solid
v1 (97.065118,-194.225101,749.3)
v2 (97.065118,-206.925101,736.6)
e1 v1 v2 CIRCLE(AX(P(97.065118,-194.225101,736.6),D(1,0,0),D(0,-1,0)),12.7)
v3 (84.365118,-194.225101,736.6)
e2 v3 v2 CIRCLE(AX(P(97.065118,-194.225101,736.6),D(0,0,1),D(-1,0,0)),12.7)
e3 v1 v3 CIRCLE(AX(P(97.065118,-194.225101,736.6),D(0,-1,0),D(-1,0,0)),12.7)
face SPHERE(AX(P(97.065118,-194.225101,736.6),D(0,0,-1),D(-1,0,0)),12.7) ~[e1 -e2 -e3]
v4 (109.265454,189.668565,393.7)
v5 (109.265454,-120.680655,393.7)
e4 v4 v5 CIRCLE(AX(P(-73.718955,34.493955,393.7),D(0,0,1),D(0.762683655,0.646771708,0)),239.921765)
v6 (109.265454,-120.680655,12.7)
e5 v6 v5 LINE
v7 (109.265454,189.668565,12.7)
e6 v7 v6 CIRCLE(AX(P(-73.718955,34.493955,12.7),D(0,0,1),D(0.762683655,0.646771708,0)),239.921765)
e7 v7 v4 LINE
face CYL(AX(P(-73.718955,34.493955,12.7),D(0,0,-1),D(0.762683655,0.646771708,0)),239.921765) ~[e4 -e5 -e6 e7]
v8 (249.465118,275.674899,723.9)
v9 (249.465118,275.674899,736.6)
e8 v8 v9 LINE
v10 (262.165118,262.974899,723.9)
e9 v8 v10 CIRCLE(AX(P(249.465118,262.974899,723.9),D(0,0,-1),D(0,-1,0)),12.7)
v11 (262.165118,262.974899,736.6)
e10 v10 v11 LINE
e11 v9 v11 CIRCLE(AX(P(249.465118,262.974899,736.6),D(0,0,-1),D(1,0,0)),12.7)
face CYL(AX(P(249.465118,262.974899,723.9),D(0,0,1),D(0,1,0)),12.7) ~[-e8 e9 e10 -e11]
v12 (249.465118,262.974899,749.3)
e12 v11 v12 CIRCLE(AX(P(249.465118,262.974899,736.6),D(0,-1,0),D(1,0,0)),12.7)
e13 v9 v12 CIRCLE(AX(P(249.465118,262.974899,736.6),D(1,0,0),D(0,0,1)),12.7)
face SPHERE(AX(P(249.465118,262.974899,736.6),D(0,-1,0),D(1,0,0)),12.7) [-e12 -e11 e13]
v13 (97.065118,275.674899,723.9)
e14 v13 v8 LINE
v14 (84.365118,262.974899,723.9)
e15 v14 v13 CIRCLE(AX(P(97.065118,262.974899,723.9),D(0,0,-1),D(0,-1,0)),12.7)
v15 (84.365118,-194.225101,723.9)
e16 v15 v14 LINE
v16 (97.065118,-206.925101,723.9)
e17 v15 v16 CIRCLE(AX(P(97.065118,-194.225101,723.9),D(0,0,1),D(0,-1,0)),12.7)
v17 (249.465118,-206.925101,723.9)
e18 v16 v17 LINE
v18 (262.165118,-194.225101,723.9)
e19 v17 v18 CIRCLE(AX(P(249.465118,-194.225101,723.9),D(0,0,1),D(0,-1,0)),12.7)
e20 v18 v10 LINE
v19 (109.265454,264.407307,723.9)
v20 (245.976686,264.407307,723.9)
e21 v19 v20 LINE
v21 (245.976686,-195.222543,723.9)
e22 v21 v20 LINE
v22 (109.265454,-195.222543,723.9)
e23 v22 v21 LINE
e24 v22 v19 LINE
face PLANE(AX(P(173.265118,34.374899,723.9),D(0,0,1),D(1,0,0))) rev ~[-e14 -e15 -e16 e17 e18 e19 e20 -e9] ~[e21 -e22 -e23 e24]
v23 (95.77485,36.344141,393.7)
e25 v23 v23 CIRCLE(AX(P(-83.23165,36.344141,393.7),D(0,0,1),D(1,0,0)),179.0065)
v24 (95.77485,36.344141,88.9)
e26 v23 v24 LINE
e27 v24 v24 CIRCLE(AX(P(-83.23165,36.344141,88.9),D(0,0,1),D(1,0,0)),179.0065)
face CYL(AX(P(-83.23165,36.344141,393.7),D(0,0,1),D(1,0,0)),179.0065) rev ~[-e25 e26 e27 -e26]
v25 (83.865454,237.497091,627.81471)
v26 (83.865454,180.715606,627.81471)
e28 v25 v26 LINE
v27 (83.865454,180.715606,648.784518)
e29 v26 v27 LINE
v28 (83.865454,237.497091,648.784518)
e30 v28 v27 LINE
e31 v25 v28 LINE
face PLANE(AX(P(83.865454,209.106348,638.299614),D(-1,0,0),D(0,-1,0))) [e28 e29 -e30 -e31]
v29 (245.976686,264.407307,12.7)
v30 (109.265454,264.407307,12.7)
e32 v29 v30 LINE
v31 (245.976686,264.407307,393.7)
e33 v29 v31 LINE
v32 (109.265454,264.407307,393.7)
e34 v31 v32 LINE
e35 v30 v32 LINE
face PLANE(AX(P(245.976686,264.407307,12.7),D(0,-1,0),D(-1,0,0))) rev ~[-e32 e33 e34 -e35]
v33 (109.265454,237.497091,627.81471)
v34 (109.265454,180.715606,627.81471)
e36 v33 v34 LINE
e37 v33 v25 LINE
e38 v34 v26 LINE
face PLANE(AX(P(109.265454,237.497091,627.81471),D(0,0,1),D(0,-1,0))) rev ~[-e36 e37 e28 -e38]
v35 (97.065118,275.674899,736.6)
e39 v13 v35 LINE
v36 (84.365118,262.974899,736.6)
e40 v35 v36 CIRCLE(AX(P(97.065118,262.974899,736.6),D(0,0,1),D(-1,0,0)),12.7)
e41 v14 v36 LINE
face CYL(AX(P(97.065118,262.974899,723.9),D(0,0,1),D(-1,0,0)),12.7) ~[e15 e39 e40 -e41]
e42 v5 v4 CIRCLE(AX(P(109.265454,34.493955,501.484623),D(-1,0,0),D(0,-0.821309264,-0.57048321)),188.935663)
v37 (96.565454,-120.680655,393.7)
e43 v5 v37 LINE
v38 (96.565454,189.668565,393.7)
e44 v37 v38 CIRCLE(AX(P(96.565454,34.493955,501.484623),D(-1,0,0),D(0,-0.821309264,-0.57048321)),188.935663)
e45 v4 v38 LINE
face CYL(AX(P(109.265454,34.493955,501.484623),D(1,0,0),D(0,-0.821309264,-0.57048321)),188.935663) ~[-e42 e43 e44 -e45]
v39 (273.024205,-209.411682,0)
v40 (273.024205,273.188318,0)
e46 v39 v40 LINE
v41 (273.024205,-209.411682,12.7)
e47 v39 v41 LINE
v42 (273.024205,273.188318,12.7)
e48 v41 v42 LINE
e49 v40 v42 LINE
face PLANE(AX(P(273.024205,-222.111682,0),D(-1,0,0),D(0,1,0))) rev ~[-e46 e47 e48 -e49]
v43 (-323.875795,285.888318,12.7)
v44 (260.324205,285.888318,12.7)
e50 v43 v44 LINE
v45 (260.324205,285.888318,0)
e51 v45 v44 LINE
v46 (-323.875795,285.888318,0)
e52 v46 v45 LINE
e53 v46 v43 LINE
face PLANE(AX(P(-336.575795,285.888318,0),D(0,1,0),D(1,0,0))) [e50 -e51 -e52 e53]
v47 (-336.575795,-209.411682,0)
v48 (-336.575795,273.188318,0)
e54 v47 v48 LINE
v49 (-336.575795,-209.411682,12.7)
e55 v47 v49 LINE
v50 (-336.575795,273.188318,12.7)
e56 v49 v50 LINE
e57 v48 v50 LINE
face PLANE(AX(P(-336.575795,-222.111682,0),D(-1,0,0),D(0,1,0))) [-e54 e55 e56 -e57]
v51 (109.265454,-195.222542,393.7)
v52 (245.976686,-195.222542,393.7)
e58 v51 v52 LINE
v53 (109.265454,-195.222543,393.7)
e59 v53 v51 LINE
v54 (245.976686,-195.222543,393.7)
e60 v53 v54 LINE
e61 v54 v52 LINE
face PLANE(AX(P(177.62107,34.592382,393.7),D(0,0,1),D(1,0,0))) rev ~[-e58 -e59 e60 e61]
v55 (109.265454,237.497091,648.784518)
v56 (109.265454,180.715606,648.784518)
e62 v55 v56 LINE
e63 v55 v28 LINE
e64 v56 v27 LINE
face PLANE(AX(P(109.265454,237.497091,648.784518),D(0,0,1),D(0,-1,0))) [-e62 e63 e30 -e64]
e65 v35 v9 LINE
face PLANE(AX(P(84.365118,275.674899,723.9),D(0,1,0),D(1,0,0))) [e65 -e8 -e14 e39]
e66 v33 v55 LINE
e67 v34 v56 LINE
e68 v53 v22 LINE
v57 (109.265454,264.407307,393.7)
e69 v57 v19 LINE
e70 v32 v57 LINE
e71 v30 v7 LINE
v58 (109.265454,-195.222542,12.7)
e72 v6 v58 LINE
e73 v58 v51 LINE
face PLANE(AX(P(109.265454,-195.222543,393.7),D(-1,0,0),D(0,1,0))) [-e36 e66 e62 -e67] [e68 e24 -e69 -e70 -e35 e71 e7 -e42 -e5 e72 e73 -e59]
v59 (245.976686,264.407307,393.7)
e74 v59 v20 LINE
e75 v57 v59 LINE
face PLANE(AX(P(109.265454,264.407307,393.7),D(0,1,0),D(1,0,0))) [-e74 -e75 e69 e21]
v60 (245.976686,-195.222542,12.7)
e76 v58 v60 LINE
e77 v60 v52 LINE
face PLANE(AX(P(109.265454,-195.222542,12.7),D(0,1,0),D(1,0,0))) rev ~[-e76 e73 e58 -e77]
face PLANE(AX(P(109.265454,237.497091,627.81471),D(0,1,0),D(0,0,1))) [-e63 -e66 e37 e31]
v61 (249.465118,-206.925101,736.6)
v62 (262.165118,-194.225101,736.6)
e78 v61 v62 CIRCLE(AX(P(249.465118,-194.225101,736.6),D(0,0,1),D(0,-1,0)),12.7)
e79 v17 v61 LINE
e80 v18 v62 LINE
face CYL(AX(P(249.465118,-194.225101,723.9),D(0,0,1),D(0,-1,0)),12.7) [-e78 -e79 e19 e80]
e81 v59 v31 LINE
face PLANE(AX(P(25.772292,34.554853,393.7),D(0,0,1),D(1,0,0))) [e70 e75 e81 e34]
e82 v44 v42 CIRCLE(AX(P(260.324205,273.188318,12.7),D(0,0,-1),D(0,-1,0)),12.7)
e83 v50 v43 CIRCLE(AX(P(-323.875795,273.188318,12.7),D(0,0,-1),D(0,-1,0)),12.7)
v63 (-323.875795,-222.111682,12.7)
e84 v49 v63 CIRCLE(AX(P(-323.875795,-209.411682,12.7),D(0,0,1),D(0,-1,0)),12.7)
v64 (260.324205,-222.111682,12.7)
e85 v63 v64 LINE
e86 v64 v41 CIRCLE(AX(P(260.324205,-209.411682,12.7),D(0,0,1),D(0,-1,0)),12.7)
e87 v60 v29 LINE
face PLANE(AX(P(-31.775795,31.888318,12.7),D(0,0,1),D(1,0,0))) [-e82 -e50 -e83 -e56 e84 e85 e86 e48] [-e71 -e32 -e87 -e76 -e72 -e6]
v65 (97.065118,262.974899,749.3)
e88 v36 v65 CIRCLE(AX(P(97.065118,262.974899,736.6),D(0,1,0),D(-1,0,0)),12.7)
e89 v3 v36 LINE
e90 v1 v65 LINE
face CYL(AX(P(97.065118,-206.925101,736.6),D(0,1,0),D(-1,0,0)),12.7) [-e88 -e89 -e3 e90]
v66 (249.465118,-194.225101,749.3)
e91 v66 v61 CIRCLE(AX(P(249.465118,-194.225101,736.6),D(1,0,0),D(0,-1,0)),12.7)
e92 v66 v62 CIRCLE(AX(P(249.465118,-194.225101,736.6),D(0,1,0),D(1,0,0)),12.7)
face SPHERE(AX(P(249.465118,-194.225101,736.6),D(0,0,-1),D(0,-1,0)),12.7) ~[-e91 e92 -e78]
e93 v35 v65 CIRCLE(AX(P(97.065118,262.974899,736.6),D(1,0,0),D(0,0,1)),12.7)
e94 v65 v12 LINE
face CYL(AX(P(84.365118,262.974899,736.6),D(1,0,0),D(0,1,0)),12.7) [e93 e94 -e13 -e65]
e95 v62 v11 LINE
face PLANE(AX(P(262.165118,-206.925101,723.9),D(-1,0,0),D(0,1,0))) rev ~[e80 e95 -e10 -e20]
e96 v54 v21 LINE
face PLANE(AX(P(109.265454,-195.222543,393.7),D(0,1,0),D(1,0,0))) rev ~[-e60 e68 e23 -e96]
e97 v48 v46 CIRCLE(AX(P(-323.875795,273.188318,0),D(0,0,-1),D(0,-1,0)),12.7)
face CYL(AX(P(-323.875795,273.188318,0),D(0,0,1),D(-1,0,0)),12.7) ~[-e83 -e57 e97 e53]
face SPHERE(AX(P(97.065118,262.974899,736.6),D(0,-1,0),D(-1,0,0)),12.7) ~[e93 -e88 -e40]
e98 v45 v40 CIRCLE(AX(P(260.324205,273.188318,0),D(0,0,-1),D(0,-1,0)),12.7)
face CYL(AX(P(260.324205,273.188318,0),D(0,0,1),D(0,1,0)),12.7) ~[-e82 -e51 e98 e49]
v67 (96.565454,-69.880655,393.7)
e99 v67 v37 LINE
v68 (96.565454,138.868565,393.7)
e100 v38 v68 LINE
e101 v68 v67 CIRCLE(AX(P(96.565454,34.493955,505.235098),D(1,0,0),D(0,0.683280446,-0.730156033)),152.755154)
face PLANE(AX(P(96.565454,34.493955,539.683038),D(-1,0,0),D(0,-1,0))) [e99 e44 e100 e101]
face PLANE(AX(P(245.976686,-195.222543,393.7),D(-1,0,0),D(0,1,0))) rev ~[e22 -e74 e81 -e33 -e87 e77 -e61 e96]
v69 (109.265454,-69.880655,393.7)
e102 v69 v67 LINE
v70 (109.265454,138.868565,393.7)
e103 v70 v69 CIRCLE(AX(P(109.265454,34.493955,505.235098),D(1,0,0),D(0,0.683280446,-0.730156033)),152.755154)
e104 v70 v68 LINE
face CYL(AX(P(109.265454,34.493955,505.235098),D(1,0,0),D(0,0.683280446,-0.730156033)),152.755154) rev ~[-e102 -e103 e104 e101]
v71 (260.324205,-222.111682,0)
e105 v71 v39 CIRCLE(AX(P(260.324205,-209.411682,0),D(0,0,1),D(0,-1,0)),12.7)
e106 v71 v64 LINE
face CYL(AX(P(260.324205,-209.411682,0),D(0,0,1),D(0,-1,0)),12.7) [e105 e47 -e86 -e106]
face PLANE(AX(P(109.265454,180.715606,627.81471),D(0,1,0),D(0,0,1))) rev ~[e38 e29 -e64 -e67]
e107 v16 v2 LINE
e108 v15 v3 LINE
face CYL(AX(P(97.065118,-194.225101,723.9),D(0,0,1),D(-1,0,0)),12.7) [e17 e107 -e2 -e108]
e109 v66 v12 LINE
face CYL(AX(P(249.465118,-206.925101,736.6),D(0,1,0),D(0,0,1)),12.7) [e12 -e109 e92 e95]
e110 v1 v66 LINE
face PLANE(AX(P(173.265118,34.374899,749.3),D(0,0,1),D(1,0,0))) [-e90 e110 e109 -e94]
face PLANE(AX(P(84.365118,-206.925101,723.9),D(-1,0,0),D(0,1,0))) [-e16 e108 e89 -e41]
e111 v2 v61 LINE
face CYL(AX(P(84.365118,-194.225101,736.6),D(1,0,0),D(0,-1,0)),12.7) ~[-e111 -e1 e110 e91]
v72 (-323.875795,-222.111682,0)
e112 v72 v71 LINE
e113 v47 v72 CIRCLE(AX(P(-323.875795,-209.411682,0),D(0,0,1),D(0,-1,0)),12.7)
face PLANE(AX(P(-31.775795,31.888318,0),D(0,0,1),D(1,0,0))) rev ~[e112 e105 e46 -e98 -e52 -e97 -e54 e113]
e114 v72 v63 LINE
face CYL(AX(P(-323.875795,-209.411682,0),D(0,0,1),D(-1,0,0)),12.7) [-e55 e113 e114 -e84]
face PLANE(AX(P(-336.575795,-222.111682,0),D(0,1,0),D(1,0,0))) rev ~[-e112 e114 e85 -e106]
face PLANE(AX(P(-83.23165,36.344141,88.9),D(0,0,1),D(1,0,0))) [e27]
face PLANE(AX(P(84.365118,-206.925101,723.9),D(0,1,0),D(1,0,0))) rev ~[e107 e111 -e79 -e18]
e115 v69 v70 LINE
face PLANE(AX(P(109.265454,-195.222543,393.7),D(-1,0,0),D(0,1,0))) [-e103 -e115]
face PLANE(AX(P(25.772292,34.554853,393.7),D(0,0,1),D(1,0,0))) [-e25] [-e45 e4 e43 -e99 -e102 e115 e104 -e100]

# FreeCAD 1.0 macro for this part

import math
import FreeCAD as App
import Part
import Sketcher

V = App.Vector
Q = App.Units.Quantity


def edges_at(feature, points):
    """Names of the edges that pass closest to the given points."""
    edges = feature.Shape.Edges
    near = lambda p: min(range(len(edges)), key=lambda i: edges[i].distToShape(Part.Vertex(*p))[0])
    return sorted({f"Edge{near(p) + 1}" for p in points})

doc = App.newDocument("Part")
body = doc.addObject("PartDesign::Body", "Body")

# Sketch on XY plane
sketch1 = body.newObject("Sketcher::SketchObject", "Sketch")
sketch1.AttachmentSupport = (doc.getObject("XY_Plane"), [""])
sketch1.MapMode = "FlatFace"
sketch1.addGeometry([
    Part.LineSegment(V(-337, 286, 0), V(-337, -222, 0)),
    Part.LineSegment(V(-337, -222, 0), V(273, -222, 0)),
    Part.LineSegment(V(273, -222, 0), V(273, 286, 0)),
    Part.LineSegment(V(273, 286, 0), V(-337, 286, 0)),
], False)
sketch1.addConstraint([
    Sketcher.Constraint("Coincident", 0, 2, 1, 1),
    Sketcher.Constraint("Coincident", 1, 2, 2, 1),
    Sketcher.Constraint("Coincident", 2, 2, 3, 1),
    Sketcher.Constraint("Coincident", 3, 2, 0, 1),
    Sketcher.Constraint("Vertical", 0),
    Sketcher.Constraint("Horizontal", 1),
    Sketcher.Constraint("Vertical", 2),
    Sketcher.Constraint("Horizontal", 3),
    Sketcher.Constraint("DistanceX", 1, 1, 1, 2, Q("24 in")),
    Sketcher.Constraint("DistanceY", 0, 2, 0, 1, Q("20 in")),
    Sketcher.Constraint("DistanceY", 0, 2, -1, 1, Q("222.111682 mm")),
    Sketcher.Constraint("DistanceX", 0, 2, -1, 1, Q("336.575795 mm")),
])
pad1 = body.newObject("PartDesign::Pad", "Pad")
pad1.Profile = sketch1
pad1.Length = Q("0.5 in")

# Sketch on XY plane
sketch2 = body.newObject("Sketcher::SketchObject", "Sketch001")
sketch2.AttachmentSupport = (doc.getObject("XY_Plane"), [""])
sketch2.MapMode = "FlatFace"
sketch2.AttachmentOffset = App.Placement(V(0, 0, 0.5 * 25.4), App.Rotation())
sketch2.addGeometry([
    Part.LineSegment(V(109, 264, 0), V(109, 190, 0)),  # 0
    Part.ArcOfCircle(Part.Circle(V(-74, 34, 0), V(0, 0, 1), 240), math.radians(40), math.radians(320)),  # 1
    Part.LineSegment(V(109, -121, 0), V(109, -195, 0)),  # 2
    Part.LineSegment(V(109, -195, 0), V(246, -195, 0)),  # 3
    Part.LineSegment(V(246, -195, 0), V(246, 264, 0)),  # 4
    Part.LineSegment(V(246, 264, 0), V(109, 264, 0)),  # 5
], False)
sketch2.addConstraint([
    Sketcher.Constraint("Coincident", 0, 2, 1, 1),
    Sketcher.Constraint("Coincident", 1, 2, 2, 1),
    Sketcher.Constraint("Coincident", 2, 2, 3, 1),
    Sketcher.Constraint("Coincident", 3, 2, 4, 1),
    Sketcher.Constraint("Coincident", 4, 2, 5, 1),
    Sketcher.Constraint("Coincident", 5, 2, 0, 1),
    Sketcher.Constraint("Vertical", 0),
    Sketcher.Constraint("Vertical", 2),
    Sketcher.Constraint("Horizontal", 3),
    Sketcher.Constraint("Vertical", 4),
    Sketcher.Constraint("Horizontal", 5),
    Sketcher.Constraint("Vertical", 0, 2, 1, 2),
    Sketcher.Constraint("Radius", 1, Q("239.921765 mm")),
    Sketcher.Constraint("DistanceX", 3, 1, 3, 2, Q("136.711232 mm")),
    Sketcher.Constraint("DistanceY", 0, 2, 0, 1, Q("74.738742 mm")),
    Sketcher.Constraint("DistanceY", 4, 1, 4, 2, Q("459.629849 mm")),
    Sketcher.Constraint("DistanceY", 2, 2, 2, 1, Q("74.541887 mm")),
    Sketcher.Constraint("DistanceY", 2, 2, -1, 1, Q("195.222542 mm")),
    Sketcher.Constraint("DistanceX", 1, 3, -1, 1, Q("73.718955 mm")),
])
pad2 = body.newObject("PartDesign::Pad", "Pad001")
pad2.Profile = sketch2
pad2.Length = Q("15 in")
doc.recompute()

fillet = body.newObject("PartDesign::Fillet", "Fillet")
fillet.Base = (pad2, edges_at(pad2, [
    (-336.576, -222.112, 6.35),
    (273.024, -222.112, 6.35),
    (273.024, 285.888, 6.35),
    (-336.576, 285.888, 6.35),
]))
fillet.Radius = Q("0.5 in")

# Sketch on XY plane
sketch3 = body.newObject("Sketcher::SketchObject", "Sketch002")
sketch3.AttachmentSupport = (doc.getObject("XY_Plane"), [""])
sketch3.MapMode = "FlatFace"
sketch3.AttachmentOffset = App.Placement(V(0, 0, 15.5 * 25.4), App.Rotation())
sketch3.addGeometry(Part.Circle(V(-83, 36, 0), V(0, 0, 1), 179), False)
sketch3.addConstraint([
    Sketcher.Constraint("Diameter", 0, Q("14.095 in")),
    Sketcher.Constraint("DistanceX", 0, 3, -1, 1, Q("83.23165 mm")),
    Sketcher.Constraint("DistanceY", -1, 1, 0, 3, Q("36.344141 mm")),
])
pocket1 = body.newObject("PartDesign::Pocket", "Pocket")
pocket1.Profile = sketch3
pocket1.Length = Q("12 in")

# Sketch on XY plane
sketch4 = body.newObject("Sketcher::SketchObject", "Sketch003")
sketch4.AttachmentSupport = (doc.getObject("XY_Plane"), [""])
sketch4.MapMode = "FlatFace"
sketch4.AttachmentOffset = App.Placement(V(0, 0, 15.5 * 25.4), App.Rotation())
sketch4.addGeometry([
    Part.LineSegment(V(109, 264, 0), V(109, -195, 0)),
    Part.LineSegment(V(109, -195, 0), V(246, -195, 0)),
    Part.LineSegment(V(246, -195, 0), V(246, 264, 0)),
    Part.LineSegment(V(246, 264, 0), V(109, 264, 0)),
], False)
sketch4.addConstraint([
    Sketcher.Constraint("Coincident", 0, 2, 1, 1),
    Sketcher.Constraint("Coincident", 1, 2, 2, 1),
    Sketcher.Constraint("Coincident", 2, 2, 3, 1),
    Sketcher.Constraint("Coincident", 3, 2, 0, 1),
    Sketcher.Constraint("Vertical", 0),
    Sketcher.Constraint("Horizontal", 1),
    Sketcher.Constraint("Vertical", 2),
    Sketcher.Constraint("Horizontal", 3),
    Sketcher.Constraint("DistanceX", 1, 1, 1, 2, Q("136.711232 mm")),
    Sketcher.Constraint("DistanceY", 0, 2, 0, 1, Q("459.629849 mm")),
    Sketcher.Constraint("DistanceX", -1, 1, 0, 2, Q("109.265454 mm")),
    Sketcher.Constraint("DistanceY", 0, 2, -1, 1, Q("195.222543 mm")),
])
pad3 = body.newObject("PartDesign::Pad", "Pad002")
pad3.Profile = sketch4
pad3.Length = Q("13 in")

# Sketch on YZ plane
sketch5 = body.newObject("Sketcher::SketchObject", "Sketch004")
sketch5.AttachmentSupport = (doc.getObject("YZ_Plane"), [""])
sketch5.MapMode = "FlatFace"
sketch5.AttachmentOffset = App.Placement(V(0, 0, 109.265454), App.Rotation())
sketch5.addGeometry([
    Part.LineSegment(V(237, 649, 0), V(237, 628, 0)),
    Part.LineSegment(V(237, 628, 0), V(181, 628, 0)),
    Part.LineSegment(V(181, 628, 0), V(181, 649, 0)),
    Part.LineSegment(V(181, 649, 0), V(237, 649, 0)),
], False)
sketch5.addConstraint([
    Sketcher.Constraint("Coincident", 0, 2, 1, 1),
    Sketcher.Constraint("Coincident", 1, 2, 2, 1),
    Sketcher.Constraint("Coincident", 2, 2, 3, 1),
    Sketcher.Constraint("Coincident", 3, 2, 0, 1),
    Sketcher.Constraint("Vertical", 0),
    Sketcher.Constraint("Horizontal", 1),
    Sketcher.Constraint("Vertical", 2),
    Sketcher.Constraint("Horizontal", 3),
    Sketcher.Constraint("DistanceY", 0, 2, 0, 1, Q("20.969808 mm")),
    Sketcher.Constraint("DistanceX", 1, 2, 1, 1, Q("56.781485 mm")),
    Sketcher.Constraint("DistanceX", -1, 1, 0, 2, Q("237.497091 mm")),
    Sketcher.Constraint("DistanceY", -1, 1, 0, 2, Q("627.81471 mm")),
])
pad4 = body.newObject("PartDesign::Pad", "Pad003")
pad4.Profile = sketch5
pad4.Length = Q("1 in")
pad4.Reversed = True

# Sketch on YZ plane
sketch6 = body.newObject("Sketcher::SketchObject", "Sketch005")
sketch6.AttachmentSupport = (doc.getObject("YZ_Plane"), [""])
sketch6.MapMode = "FlatFace"
sketch6.AttachmentOffset = App.Placement(V(0, 0, 109.265454), App.Rotation())
sketch6.addGeometry([
    Part.ArcOfCircle(Part.Circle(V(34, 501, 0), V(0, 0, 1), 189), math.radians(-35), math.radians(215)),
    Part.LineSegment(V(190, 394, 0), V(139, 394, 0)),
    Part.ArcOfCircle(Part.Circle(V(34, 505, 0), V(0, 0, 1), 153), math.radians(-47), math.radians(227)),
    Part.LineSegment(V(-70, 394, 0), V(-121, 394, 0)),
], False)
sketch6.addConstraint([
    Sketcher.Constraint("Coincident", 0, 1, 1, 1),
    Sketcher.Constraint("Coincident", 1, 2, 2, 1),
    Sketcher.Constraint("Coincident", 2, 2, 3, 1),
    Sketcher.Constraint("Coincident", 3, 2, 0, 2),
    Sketcher.Constraint("Horizontal", 1),
    Sketcher.Constraint("Horizontal", 3),
    Sketcher.Constraint("Horizontal", 1, 2, 2, 2),
    Sketcher.Constraint("Vertical", 0, 3, 2, 3),
    Sketcher.Constraint("DistanceX", 1, 2, 1, 1, Q("2 in")),
    Sketcher.Constraint("DistanceY", -1, 1, 0, 1, Q("15.5 in")),
    Sketcher.Constraint("Radius", 0, Q("188.935663 mm")),
    Sketcher.Constraint("Radius", 2, Q("152.755154 mm")),
    Sketcher.Constraint("DistanceX", 0, 3, 0, 1, Q("155.17461 mm")),
    Sketcher.Constraint("DistanceX", -1, 1, 0, 3, Q("34.493955 mm")),
])
pad5 = body.newObject("PartDesign::Pad", "Pad004")
pad5.Profile = sketch6
pad5.Length = Q("0.5 in")
pad5.Reversed = True

# Sketch on XY plane
sketch7 = body.newObject("Sketcher::SketchObject", "Sketch006")
sketch7.AttachmentSupport = (doc.getObject("XY_Plane"), [""])
sketch7.MapMode = "FlatFace"
sketch7.AttachmentOffset = App.Placement(V(0, 0, 28.5 * 25.4), App.Rotation())
sketch7.addGeometry([
    Part.LineSegment(V(84, 276, 0), V(84, -207, 0)),
    Part.LineSegment(V(84, -207, 0), V(262, -207, 0)),
    Part.LineSegment(V(262, -207, 0), V(262, 276, 0)),
    Part.LineSegment(V(262, 276, 0), V(84, 276, 0)),
], False)
sketch7.addConstraint([
    Sketcher.Constraint("Coincident", 0, 2, 1, 1),
    Sketcher.Constraint("Coincident", 1, 2, 2, 1),
    Sketcher.Constraint("Coincident", 2, 2, 3, 1),
    Sketcher.Constraint("Coincident", 3, 2, 0, 1),
    Sketcher.Constraint("Vertical", 0),
    Sketcher.Constraint("Horizontal", 1),
    Sketcher.Constraint("Vertical", 2),
    Sketcher.Constraint("Horizontal", 3),
    Sketcher.Constraint("DistanceX", 1, 1, 1, 2, Q("7 in")),
    Sketcher.Constraint("DistanceY", 0, 2, 0, 1, Q("19 in")),
    Sketcher.Constraint("DistanceY", 0, 2, -1, 1, Q("206.925101 mm")),
    Sketcher.Constraint("DistanceX", -1, 1, 1, 2, Q("262.165118 mm")),
])
pad6 = body.newObject("PartDesign::Pad", "Pad005")
pad6.Profile = sketch7
pad6.Length = Q("1 in")
doc.recompute()

fillet2 = body.newObject("PartDesign::Fillet", "Fillet001")
fillet2.Base = (pad6, edges_at(pad6, [
    (84.365, -206.925, 736.6),
    (84.365, 34.375, 749.3),
    (262.165, -206.925, 736.6),
    (173.265, -206.925, 749.3),
    (262.165, 34.375, 749.3),
    (262.165, 275.675, 736.6),
    (84.365, 275.675, 736.6),
    (173.265, 275.675, 749.3),
]))
fillet2.Radius = Q("0.5 in")

doc.recompute()
